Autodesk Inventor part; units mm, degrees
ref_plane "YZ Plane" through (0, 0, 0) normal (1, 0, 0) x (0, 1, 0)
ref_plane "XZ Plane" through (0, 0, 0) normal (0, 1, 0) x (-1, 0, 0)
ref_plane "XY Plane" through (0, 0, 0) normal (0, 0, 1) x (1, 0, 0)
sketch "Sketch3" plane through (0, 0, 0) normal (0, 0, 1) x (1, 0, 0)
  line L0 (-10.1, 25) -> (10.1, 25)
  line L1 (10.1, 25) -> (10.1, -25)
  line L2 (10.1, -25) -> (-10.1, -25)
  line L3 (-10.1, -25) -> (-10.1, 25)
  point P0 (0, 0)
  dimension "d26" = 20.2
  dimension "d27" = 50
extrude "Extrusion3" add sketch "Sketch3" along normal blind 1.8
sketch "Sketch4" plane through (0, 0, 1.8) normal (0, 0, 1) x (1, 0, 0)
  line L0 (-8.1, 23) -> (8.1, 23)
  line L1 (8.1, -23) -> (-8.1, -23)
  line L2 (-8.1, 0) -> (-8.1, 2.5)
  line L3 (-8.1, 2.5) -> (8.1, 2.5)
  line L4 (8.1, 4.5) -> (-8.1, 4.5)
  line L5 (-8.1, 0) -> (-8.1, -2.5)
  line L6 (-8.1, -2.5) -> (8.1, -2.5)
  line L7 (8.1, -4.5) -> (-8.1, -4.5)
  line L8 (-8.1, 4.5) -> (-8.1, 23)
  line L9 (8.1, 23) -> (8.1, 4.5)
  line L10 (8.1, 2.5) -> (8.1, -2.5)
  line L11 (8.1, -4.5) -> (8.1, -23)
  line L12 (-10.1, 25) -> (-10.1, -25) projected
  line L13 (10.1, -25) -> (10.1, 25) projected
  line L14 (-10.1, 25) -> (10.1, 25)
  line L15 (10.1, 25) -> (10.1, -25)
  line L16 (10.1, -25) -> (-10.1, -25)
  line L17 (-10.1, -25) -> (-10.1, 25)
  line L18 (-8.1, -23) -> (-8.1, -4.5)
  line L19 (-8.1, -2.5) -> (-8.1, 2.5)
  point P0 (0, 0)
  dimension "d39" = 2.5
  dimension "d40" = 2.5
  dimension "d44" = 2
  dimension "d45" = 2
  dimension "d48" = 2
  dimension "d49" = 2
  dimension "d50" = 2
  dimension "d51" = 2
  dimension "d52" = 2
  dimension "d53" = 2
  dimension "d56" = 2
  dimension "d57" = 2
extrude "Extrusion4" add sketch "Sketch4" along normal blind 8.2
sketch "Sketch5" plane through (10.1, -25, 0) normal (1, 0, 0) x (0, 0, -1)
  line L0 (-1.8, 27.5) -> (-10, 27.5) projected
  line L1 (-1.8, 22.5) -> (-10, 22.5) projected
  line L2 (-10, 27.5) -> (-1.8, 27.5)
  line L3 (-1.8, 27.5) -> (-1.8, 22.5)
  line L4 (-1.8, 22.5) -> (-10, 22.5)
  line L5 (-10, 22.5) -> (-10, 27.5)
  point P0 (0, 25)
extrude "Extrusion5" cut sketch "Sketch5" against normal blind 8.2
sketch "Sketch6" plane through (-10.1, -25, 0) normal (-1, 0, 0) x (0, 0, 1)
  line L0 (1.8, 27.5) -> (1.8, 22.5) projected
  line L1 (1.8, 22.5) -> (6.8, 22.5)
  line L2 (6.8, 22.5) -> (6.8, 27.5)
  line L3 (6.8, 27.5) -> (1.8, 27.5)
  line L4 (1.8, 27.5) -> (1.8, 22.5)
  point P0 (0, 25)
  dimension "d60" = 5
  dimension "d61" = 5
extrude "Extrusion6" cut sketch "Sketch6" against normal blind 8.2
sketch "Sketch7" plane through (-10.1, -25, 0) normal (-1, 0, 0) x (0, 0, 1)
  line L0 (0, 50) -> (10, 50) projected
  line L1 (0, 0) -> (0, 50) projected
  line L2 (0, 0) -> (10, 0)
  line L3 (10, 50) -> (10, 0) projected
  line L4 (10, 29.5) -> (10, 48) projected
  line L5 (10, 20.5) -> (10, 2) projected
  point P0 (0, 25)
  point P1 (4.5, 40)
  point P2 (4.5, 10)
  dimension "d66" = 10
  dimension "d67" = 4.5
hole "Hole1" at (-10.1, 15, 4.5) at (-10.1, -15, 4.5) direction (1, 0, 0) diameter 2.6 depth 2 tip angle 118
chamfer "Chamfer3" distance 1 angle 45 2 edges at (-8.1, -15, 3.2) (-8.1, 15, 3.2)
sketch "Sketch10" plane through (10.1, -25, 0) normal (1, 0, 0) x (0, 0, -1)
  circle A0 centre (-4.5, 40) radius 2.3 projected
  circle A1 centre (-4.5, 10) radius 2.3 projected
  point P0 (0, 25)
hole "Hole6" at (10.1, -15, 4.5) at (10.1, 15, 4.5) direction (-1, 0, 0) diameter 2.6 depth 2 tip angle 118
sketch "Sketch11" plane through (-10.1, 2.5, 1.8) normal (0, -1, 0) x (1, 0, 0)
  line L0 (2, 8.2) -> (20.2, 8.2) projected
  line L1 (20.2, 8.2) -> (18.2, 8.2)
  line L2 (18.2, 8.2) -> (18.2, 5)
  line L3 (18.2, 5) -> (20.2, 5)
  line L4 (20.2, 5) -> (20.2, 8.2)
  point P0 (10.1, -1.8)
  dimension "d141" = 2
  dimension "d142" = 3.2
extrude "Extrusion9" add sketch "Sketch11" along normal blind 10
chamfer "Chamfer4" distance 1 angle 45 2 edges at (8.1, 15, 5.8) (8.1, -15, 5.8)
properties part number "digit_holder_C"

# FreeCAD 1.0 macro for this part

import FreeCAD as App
import Part
import Sketcher

V = App.Vector


def edges_at(feature, points):
    """Names of the edges that pass closest to the given points."""
    edges = feature.Shape.Edges
    near = lambda p: min(range(len(edges)), key=lambda i: edges[i].distToShape(Part.Vertex(*p))[0])
    return sorted({f"Edge{near(p) + 1}" for p in points})

doc = App.newDocument("Part")
body = doc.addObject("PartDesign::Body", "Body")

# Sketch on XY plane
sketch1 = body.newObject("Sketcher::SketchObject", "Sketch")
sketch1.AttachmentSupport = (doc.getObject("XY_Plane"), [""])
sketch1.MapMode = "FlatFace"
sketch1.addGeometry([
    Part.LineSegment(V(10, 25, 0), V(-10, 25, 0)),
    Part.LineSegment(V(-10, 25, 0), V(-10, -25, 0)),
    Part.LineSegment(V(-10, -25, 0), V(10, -25, 0)),
    Part.LineSegment(V(10, -25, 0), V(10, 25, 0)),
], False)
sketch1.addConstraint([
    Sketcher.Constraint("Coincident", 0, 2, 1, 1),
    Sketcher.Constraint("Coincident", 1, 2, 2, 1),
    Sketcher.Constraint("Coincident", 2, 2, 3, 1),
    Sketcher.Constraint("Coincident", 3, 2, 0, 1),
    Sketcher.Constraint("Horizontal", 0),
    Sketcher.Constraint("Vertical", 1),
    Sketcher.Constraint("Horizontal", 2),
    Sketcher.Constraint("Vertical", 3),
    Sketcher.Constraint("Symmetric", 0, 2, 2, 2, -1, 1),
    Sketcher.Constraint("DistanceY", 1, 2, 1, 1, 50.0),
    Sketcher.Constraint("DistanceX", 0, 2, 0, 1, 20.2),
])
pad1 = body.newObject("PartDesign::Pad", "Pad")
pad1.Profile = sketch1
pad1.Length = 1.8

# Sketch on XY plane
sketch2 = body.newObject("Sketcher::SketchObject", "Sketch001")
sketch2.AttachmentSupport = (doc.getObject("XY_Plane"), [""])
sketch2.MapMode = "FlatFace"
sketch2.AttachmentOffset = App.Placement(V(0, 0, 1.8), App.Rotation())
sketch2.addGeometry([
    Part.LineSegment(V(10, 25, 0), V(-10, 25, 0)),  # 0
    Part.LineSegment(V(-10, 25, 0), V(-10, -25, 0)),  # 1
    Part.LineSegment(V(-10, -25, 0), V(10, -25, 0)),  # 2
    Part.LineSegment(V(10, -25, 0), V(10, 25, 0)),  # 3
    Part.LineSegment(V(8, -4, 0), V(8, -23, 0)),  # 4
    Part.LineSegment(V(8, -23, 0), V(-8, -23, 0)),  # 5
    Part.LineSegment(V(-8, -23, 0), V(-8, -4, 0)),  # 6
    Part.LineSegment(V(-8, -4, 0), V(8, -4, 0)),  # 7
    Part.LineSegment(V(-8, -2, 0), V(-8, 2, 0)),  # 8
    Part.LineSegment(V(-8, 2, 0), V(8, 2, 0)),  # 9
    Part.LineSegment(V(8, 2, 0), V(8, -2, 0)),  # 10
    Part.LineSegment(V(8, -2, 0), V(-8, -2, 0)),  # 11
    Part.LineSegment(V(-8, 4, 0), V(-8, 23, 0)),  # 12
    Part.LineSegment(V(-8, 23, 0), V(8, 23, 0)),  # 13
    Part.LineSegment(V(8, 23, 0), V(8, 4, 0)),  # 14
    Part.LineSegment(V(8, 4, 0), V(-8, 4, 0)),  # 15
], False)
sketch2.addConstraint([
    Sketcher.Constraint("Coincident", 0, 2, 1, 1),
    Sketcher.Constraint("Coincident", 1, 2, 2, 1),
    Sketcher.Constraint("Coincident", 2, 2, 3, 1),
    Sketcher.Constraint("Coincident", 3, 2, 0, 1),
    Sketcher.Constraint("Coincident", 4, 2, 5, 1),
    Sketcher.Constraint("Coincident", 5, 2, 6, 1),
    Sketcher.Constraint("Coincident", 6, 2, 7, 1),
    Sketcher.Constraint("Coincident", 7, 2, 4, 1),
    Sketcher.Constraint("Coincident", 8, 2, 9, 1),
    Sketcher.Constraint("Coincident", 9, 2, 10, 1),
    Sketcher.Constraint("Coincident", 10, 2, 11, 1),
    Sketcher.Constraint("Coincident", 11, 2, 8, 1),
    Sketcher.Constraint("Coincident", 12, 2, 13, 1),
    Sketcher.Constraint("Coincident", 13, 2, 14, 1),
    Sketcher.Constraint("Coincident", 14, 2, 15, 1),
    Sketcher.Constraint("Coincident", 15, 2, 12, 1),
    Sketcher.Constraint("Horizontal", 0),
    Sketcher.Constraint("Vertical", 1),
    Sketcher.Constraint("Horizontal", 2),
    Sketcher.Constraint("Vertical", 3),
    Sketcher.Constraint("Vertical", 4),
    Sketcher.Constraint("Horizontal", 5),
    Sketcher.Constraint("Vertical", 6),
    Sketcher.Constraint("Horizontal", 7),
    Sketcher.Constraint("Vertical", 8),
    Sketcher.Constraint("Horizontal", 9),
    Sketcher.Constraint("Vertical", 10),
    Sketcher.Constraint("Horizontal", 11),
    Sketcher.Constraint("Vertical", 12),
    Sketcher.Constraint("Horizontal", 13),
    Sketcher.Constraint("Vertical", 14),
    Sketcher.Constraint("Horizontal", 15),
    Sketcher.Constraint("Symmetric", 0, 2, 2, 2, -1, 1),
    Sketcher.Constraint("Symmetric", 8, 2, 10, 2, -1, 1),
    Sketcher.Constraint("Symmetric", 4, 2, 12, 2, -1, 1),
    Sketcher.Constraint("Symmetric", 6, 2, 14, 2, -1, 1),
    Sketcher.Constraint("Vertical", 6, 2, 8, 2),
    Sketcher.Constraint("Vertical", 7, 2, 9, 2),
    Sketcher.Constraint("DistanceX", 4, 2, 2, 2, 2.0),
    Sketcher.Constraint("DistanceY", 2, 2, 4, 2, 2.0),
    Sketcher.Constraint("DistanceY", 7, 2, 10, 2, 2.0),
    Sketcher.Constraint("DistanceY", -1, 1, 8, 2, 2.5),
    Sketcher.Constraint("DistanceY", 1, 2, 1, 1, 50.0),
    Sketcher.Constraint("DistanceX", 0, 2, 0, 1, 20.2),
])
pad2 = body.newObject("PartDesign::Pad", "Pad001")
pad2.Profile = sketch2
pad2.Length = 8.2

# Sketch on YZ plane
sketch3 = body.newObject("Sketcher::SketchObject", "Sketch002")
sketch3.AttachmentSupport = (doc.getObject("YZ_Plane"), [""])
sketch3.MapMode = "FlatFace"
sketch3.AttachmentOffset = App.Placement(V(0, 0, 10.1), App.Rotation())
sketch3.addGeometry([
    Part.LineSegment(V(-2, 2, 0), V(2, 2, 0)),
    Part.LineSegment(V(2, 2, 0), V(2, 10, 0)),
    Part.LineSegment(V(2, 10, 0), V(-2, 10, 0)),
    Part.LineSegment(V(-2, 10, 0), V(-2, 2, 0)),
], False)
sketch3.addConstraint([
    Sketcher.Constraint("Coincident", 0, 2, 1, 1),
    Sketcher.Constraint("Coincident", 1, 2, 2, 1),
    Sketcher.Constraint("Coincident", 2, 2, 3, 1),
    Sketcher.Constraint("Coincident", 3, 2, 0, 1),
    Sketcher.Constraint("Horizontal", 0),
    Sketcher.Constraint("Vertical", 1),
    Sketcher.Constraint("Horizontal", 2),
    Sketcher.Constraint("Vertical", 3),
    Sketcher.Constraint("DistanceX", 0, 1, 0, 2, 5.0),
    Sketcher.Constraint("DistanceY", 1, 1, 1, 2, 8.2),
    Sketcher.Constraint("DistanceY", -1, 1, 1, 2, 10.0),
    Sketcher.Constraint("DistanceX", -1, 1, 0, 2, 2.5),
])
pocket1 = body.newObject("PartDesign::Pocket", "Pocket")
pocket1.Profile = sketch3
pocket1.Length = 8.2

# Sketch on YZ plane
sketch4 = body.newObject("Sketcher::SketchObject", "Sketch003")
sketch4.AttachmentSupport = (doc.getObject("YZ_Plane"), [""])
sketch4.MapMode = "FlatFace"
sketch4.AttachmentOffset = App.Placement(V(0, 0, -10.1), App.Rotation())
sketch4.addGeometry([
    Part.LineSegment(V(2, 7, 0), V(2, 2, 0)),
    Part.LineSegment(V(2, 2, 0), V(-2, 2, 0)),
    Part.LineSegment(V(-2, 2, 0), V(-2, 7, 0)),
    Part.LineSegment(V(-2, 7, 0), V(2, 7, 0)),
], False)
sketch4.addConstraint([
    Sketcher.Constraint("Coincident", 0, 2, 1, 1),
    Sketcher.Constraint("Coincident", 1, 2, 2, 1),
    Sketcher.Constraint("Coincident", 2, 2, 3, 1),
    Sketcher.Constraint("Coincident", 3, 2, 0, 1),
    Sketcher.Constraint("Vertical", 0),
    Sketcher.Constraint("Horizontal", 1),
    Sketcher.Constraint("Vertical", 2),
    Sketcher.Constraint("Horizontal", 3),
    Sketcher.Constraint("Equal", 3, 0),
    Sketcher.Constraint("DistanceX", 1, 2, 1, 1, 5.0),
    Sketcher.Constraint("DistanceX", -1, 1, 0, 2, 2.5),
    Sketcher.Constraint("DistanceY", -1, 1, 0, 2, 1.8),
])
pocket2 = body.newObject("PartDesign::Pocket", "Pocket001")
pocket2.Profile = sketch4
pocket2.Length = 8.2
pocket2.Reversed = True

# Sketch on YZ plane
sketch5 = body.newObject("Sketcher::SketchObject", "Sketch004")
sketch5.AttachmentSupport = (doc.getObject("YZ_Plane"), [""])
sketch5.MapMode = "FlatFace"
sketch5.AttachmentOffset = App.Placement(V(0, 0, -10.1), App.Rotation())
sketch5.addGeometry([
    Part.Circle(V(15, 4.5, 0), V(0, 0, 1), 1.3),
    Part.Circle(V(-15, 4.5, 0), V(0, 0, 1), 1.3),
], False)
sketch5.addConstraint([
    Sketcher.Constraint("Equal", 0, 1),
    Sketcher.Constraint("Symmetric", 0, 3, 1, 3, -2),
    Sketcher.Constraint("Diameter", 0, 2.6),
    Sketcher.Constraint("DistanceX", -1, 1, 0, 3, 15.0),
    Sketcher.Constraint("DistanceY", -1, 1, 0, 3, 4.5),
])
doc.recompute()
hole = body.newObject("PartDesign::Hole", "Hole")
hole.Profile = sketch5
hole.ThreadType = "None"
hole.Diameter = 2.6
hole.DepthType = "Dimension"
hole.Depth = 2
hole.DrillPoint = "Angled"
hole.DrillPointAngle = 118
hole.Reversed = True
doc.recompute()

chamfer = body.newObject("PartDesign::Chamfer", "Chamfer")
chamfer.Base = (hole, edges_at(hole, [(-8.1, -15, 3.2), (-8.1, 15, 3.2)]))
chamfer.Size = 1

# Sketch on YZ plane
sketch6 = body.newObject("Sketcher::SketchObject", "Sketch005")
sketch6.AttachmentSupport = (doc.getObject("YZ_Plane"), [""])
sketch6.MapMode = "FlatFace"
sketch6.AttachmentOffset = App.Placement(V(0, 0, 10.1), App.Rotation())
sketch6.addGeometry([
    Part.Circle(V(-15, 4.5, 0), V(0, 0, 1), 1.3),
    Part.Circle(V(15, 4.5, 0), V(0, 0, 1), 1.3),
], False)
sketch6.addConstraint([
    Sketcher.Constraint("Equal", 0, 1),
    Sketcher.Constraint("Symmetric", 0, 3, 1, 3, -2),
    Sketcher.Constraint("Diameter", 0, 2.6),
    Sketcher.Constraint("DistanceX", 0, 3, -1, 1, 15.0),
    Sketcher.Constraint("DistanceY", -1, 1, 0, 3, 4.5),
])
doc.recompute()
hole2 = body.newObject("PartDesign::Hole", "Hole001")
hole2.Profile = sketch6
hole2.ThreadType = "None"
hole2.Diameter = 2.6
hole2.DepthType = "Dimension"
hole2.Depth = 2
hole2.DrillPoint = "Angled"
hole2.DrillPointAngle = 118

# Sketch on XZ plane
sketch7 = body.newObject("Sketcher::SketchObject", "Sketch006")
sketch7.AttachmentSupport = (doc.getObject("XZ_Plane"), [""])
sketch7.MapMode = "FlatFace"
sketch7.AttachmentOffset = App.Placement(V(0, 0, -2.5), App.Rotation())
sketch7.addGeometry([
    Part.LineSegment(V(10.1, 10, 0), V(8.1, 10, 0)),
    Part.LineSegment(V(8.1, 10, 0), V(8.1, 6.8, 0)),
    Part.LineSegment(V(8.1, 6.8, 0), V(10.1, 6.8, 0)),
    Part.LineSegment(V(10.1, 6.8, 0), V(10.1, 10, 0)),
], False)
sketch7.addConstraint([
    Sketcher.Constraint("Coincident", 0, 2, 1, 1),
    Sketcher.Constraint("Coincident", 1, 2, 2, 1),
    Sketcher.Constraint("Coincident", 2, 2, 3, 1),
    Sketcher.Constraint("Coincident", 3, 2, 0, 1),
    Sketcher.Constraint("Horizontal", 0),
    Sketcher.Constraint("Vertical", 1),
    Sketcher.Constraint("Horizontal", 2),
    Sketcher.Constraint("Vertical", 3),
    Sketcher.Constraint("DistanceX", 0, 2, 0, 1, 2.0),
    Sketcher.Constraint("DistanceY", 1, 2, 1, 1, 3.2),
    Sketcher.Constraint("DistanceY", -1, 1, 0, 2, 10.0),
    Sketcher.Constraint("DistanceX", -1, 1, 0, 2, 8.1),
])
pad3 = body.newObject("PartDesign::Pad", "Pad002")
pad3.Profile = sketch7
pad3.Length = 10
doc.recompute()

chamfer2 = body.newObject("PartDesign::Chamfer", "Chamfer001")
chamfer2.Base = (pad3, edges_at(pad3, [(8.1, 15, 5.8), (8.1, -15, 5.8)]))
chamfer2.Size = 1

doc.recompute()
